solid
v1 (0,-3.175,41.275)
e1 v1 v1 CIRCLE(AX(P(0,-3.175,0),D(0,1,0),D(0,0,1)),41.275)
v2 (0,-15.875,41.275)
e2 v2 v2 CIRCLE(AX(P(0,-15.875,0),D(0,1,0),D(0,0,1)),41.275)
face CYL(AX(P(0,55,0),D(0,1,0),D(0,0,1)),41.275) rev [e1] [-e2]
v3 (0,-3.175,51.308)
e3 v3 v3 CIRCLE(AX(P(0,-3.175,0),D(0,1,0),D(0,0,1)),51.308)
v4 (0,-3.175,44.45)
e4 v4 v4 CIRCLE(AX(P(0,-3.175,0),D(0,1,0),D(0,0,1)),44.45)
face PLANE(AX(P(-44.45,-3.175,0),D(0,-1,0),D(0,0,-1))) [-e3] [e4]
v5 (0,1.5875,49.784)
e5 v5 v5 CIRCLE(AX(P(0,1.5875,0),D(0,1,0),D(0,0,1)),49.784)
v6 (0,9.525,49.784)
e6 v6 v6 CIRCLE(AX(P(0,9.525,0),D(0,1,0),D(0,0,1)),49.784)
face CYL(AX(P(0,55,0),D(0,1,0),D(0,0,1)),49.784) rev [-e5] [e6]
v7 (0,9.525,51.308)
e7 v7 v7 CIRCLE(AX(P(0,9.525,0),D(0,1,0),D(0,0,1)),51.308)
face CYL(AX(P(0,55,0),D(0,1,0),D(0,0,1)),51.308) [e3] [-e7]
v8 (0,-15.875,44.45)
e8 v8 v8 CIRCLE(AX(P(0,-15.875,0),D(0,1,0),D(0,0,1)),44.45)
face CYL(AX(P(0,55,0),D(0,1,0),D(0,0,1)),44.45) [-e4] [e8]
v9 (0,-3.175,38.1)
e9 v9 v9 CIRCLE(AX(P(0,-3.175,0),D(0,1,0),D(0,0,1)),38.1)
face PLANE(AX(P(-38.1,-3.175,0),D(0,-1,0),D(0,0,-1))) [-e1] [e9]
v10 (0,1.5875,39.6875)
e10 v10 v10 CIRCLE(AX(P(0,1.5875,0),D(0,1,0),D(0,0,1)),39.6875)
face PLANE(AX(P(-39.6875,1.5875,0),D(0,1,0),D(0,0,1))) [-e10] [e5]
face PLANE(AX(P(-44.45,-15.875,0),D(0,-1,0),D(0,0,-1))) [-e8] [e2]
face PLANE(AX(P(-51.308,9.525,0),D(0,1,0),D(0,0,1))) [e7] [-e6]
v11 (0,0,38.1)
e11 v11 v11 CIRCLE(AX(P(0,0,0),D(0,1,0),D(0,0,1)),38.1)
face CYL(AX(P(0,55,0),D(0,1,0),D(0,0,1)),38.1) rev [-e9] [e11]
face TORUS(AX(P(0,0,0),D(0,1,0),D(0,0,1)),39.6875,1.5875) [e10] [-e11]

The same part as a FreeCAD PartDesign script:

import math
import FreeCAD as App
import Part
import Sketcher
Q = App.Units.Quantity

doc = App.newDocument("Part")
body = doc.addObject("PartDesign::Body", "Body")

# Sketch on XY plane
sketch1 = body.newObject("Sketcher::SketchObject", "Sketch")
sketch1.AttachmentSupport = (doc.getObject("XY_Plane"), [""])
sketch1.MapMode = "FlatFace"
sketch1.addGeometry([
    Part.LineSegment(App.Vector(-38.1, -3.2, 0), App.Vector(-38.1, 0, 0)),  # 0
    Part.ArcOfCircle(Part.Circle(App.Vector(-39.7, 0, 0), App.Vector(0, 0, 1), 1.6), math.radians(0), math.radians(90)),  # 1
    Part.LineSegment(App.Vector(-39.7, 1.6, 0), App.Vector(-49.8, 1.6, 0)),  # 2
    Part.LineSegment(App.Vector(-49.8, 1.6, 0), App.Vector(-49.8, 9.5, 0)),  # 3
    Part.LineSegment(App.Vector(-49.8, 9.5, 0), App.Vector(-51.3, 9.5, 0)),  # 4
    Part.LineSegment(App.Vector(-51.3, 9.5, 0), App.Vector(-51.3, -3.2, 0)),  # 5
    Part.LineSegment(App.Vector(-51.3, -3.2, 0), App.Vector(-44.5, -3.2, 0)),  # 6
    Part.LineSegment(App.Vector(-44.5, -3.2, 0), App.Vector(-44.5, -15.9, 0)),  # 7
    Part.LineSegment(App.Vector(-44.5, -15.9, 0), App.Vector(-41.3, -15.9, 0)),  # 8
    Part.LineSegment(App.Vector(-41.3, -15.9, 0), App.Vector(-41.3, -3.2, 0)),  # 9
    Part.LineSegment(App.Vector(-41.3, -3.2, 0), App.Vector(-38.1, -3.2, 0)),  # 10
], False)
sketch1.addConstraint([
    Sketcher.Constraint("Tangent", 0, 2, 1, 1),
    Sketcher.Constraint("Tangent", 1, 2, 2, 1),
    Sketcher.Constraint("Coincident", 2, 2, 3, 1),
    Sketcher.Constraint("Coincident", 3, 2, 4, 1),
    Sketcher.Constraint("Coincident", 4, 2, 5, 1),
    Sketcher.Constraint("Coincident", 5, 2, 6, 1),
    Sketcher.Constraint("Coincident", 6, 2, 7, 1),
    Sketcher.Constraint("Coincident", 7, 2, 8, 1),
    Sketcher.Constraint("Coincident", 8, 2, 9, 1),
    Sketcher.Constraint("Coincident", 9, 2, 10, 1),
    Sketcher.Constraint("Coincident", 10, 2, 0, 1),
    Sketcher.Constraint("Vertical", 0),
    Sketcher.Constraint("Horizontal", 2),
    Sketcher.Constraint("Vertical", 3),
    Sketcher.Constraint("Horizontal", 4),
    Sketcher.Constraint("Vertical", 5),
    Sketcher.Constraint("Horizontal", 6),
    Sketcher.Constraint("Vertical", 7),
    Sketcher.Constraint("Horizontal", 8),
    Sketcher.Constraint("Vertical", 9),
    Sketcher.Constraint("Horizontal", 10),
    Sketcher.Constraint("PointOnObject", 1, 3, -1),
    Sketcher.Constraint("Horizontal", 6, 2, 9, 2),
    Sketcher.Constraint("Equal", 8, 10),
    Sketcher.Constraint("Equal", 10, 0),
    Sketcher.Constraint("Equal", 5, 7),
    Sketcher.Constraint("DistanceY", 5, 2, 5, 1, Q("0.5 in")),
    Sketcher.Constraint("Radius", 1, Q("0.0625 in")),
    Sketcher.Constraint("DistanceX", 4, 2, 4, 1, Q("0.06 in")),
    Sketcher.Constraint("DistanceX", 6, 1, 6, 2, Q("0.27 in")),
    Sketcher.Constraint("DistanceX", 0, 2, -1, 1, Q("1.5 in")),
    Sketcher.Constraint("DistanceX", 8, 1, 8, 2, Q("0.125 in")),
])
revolution = body.newObject("PartDesign::Revolution", "Revolution")
revolution.Profile = sketch1
revolution.ReferenceAxis = (sketch1, ["V_Axis"])
revolution.Angle = 360

doc.recompute()
